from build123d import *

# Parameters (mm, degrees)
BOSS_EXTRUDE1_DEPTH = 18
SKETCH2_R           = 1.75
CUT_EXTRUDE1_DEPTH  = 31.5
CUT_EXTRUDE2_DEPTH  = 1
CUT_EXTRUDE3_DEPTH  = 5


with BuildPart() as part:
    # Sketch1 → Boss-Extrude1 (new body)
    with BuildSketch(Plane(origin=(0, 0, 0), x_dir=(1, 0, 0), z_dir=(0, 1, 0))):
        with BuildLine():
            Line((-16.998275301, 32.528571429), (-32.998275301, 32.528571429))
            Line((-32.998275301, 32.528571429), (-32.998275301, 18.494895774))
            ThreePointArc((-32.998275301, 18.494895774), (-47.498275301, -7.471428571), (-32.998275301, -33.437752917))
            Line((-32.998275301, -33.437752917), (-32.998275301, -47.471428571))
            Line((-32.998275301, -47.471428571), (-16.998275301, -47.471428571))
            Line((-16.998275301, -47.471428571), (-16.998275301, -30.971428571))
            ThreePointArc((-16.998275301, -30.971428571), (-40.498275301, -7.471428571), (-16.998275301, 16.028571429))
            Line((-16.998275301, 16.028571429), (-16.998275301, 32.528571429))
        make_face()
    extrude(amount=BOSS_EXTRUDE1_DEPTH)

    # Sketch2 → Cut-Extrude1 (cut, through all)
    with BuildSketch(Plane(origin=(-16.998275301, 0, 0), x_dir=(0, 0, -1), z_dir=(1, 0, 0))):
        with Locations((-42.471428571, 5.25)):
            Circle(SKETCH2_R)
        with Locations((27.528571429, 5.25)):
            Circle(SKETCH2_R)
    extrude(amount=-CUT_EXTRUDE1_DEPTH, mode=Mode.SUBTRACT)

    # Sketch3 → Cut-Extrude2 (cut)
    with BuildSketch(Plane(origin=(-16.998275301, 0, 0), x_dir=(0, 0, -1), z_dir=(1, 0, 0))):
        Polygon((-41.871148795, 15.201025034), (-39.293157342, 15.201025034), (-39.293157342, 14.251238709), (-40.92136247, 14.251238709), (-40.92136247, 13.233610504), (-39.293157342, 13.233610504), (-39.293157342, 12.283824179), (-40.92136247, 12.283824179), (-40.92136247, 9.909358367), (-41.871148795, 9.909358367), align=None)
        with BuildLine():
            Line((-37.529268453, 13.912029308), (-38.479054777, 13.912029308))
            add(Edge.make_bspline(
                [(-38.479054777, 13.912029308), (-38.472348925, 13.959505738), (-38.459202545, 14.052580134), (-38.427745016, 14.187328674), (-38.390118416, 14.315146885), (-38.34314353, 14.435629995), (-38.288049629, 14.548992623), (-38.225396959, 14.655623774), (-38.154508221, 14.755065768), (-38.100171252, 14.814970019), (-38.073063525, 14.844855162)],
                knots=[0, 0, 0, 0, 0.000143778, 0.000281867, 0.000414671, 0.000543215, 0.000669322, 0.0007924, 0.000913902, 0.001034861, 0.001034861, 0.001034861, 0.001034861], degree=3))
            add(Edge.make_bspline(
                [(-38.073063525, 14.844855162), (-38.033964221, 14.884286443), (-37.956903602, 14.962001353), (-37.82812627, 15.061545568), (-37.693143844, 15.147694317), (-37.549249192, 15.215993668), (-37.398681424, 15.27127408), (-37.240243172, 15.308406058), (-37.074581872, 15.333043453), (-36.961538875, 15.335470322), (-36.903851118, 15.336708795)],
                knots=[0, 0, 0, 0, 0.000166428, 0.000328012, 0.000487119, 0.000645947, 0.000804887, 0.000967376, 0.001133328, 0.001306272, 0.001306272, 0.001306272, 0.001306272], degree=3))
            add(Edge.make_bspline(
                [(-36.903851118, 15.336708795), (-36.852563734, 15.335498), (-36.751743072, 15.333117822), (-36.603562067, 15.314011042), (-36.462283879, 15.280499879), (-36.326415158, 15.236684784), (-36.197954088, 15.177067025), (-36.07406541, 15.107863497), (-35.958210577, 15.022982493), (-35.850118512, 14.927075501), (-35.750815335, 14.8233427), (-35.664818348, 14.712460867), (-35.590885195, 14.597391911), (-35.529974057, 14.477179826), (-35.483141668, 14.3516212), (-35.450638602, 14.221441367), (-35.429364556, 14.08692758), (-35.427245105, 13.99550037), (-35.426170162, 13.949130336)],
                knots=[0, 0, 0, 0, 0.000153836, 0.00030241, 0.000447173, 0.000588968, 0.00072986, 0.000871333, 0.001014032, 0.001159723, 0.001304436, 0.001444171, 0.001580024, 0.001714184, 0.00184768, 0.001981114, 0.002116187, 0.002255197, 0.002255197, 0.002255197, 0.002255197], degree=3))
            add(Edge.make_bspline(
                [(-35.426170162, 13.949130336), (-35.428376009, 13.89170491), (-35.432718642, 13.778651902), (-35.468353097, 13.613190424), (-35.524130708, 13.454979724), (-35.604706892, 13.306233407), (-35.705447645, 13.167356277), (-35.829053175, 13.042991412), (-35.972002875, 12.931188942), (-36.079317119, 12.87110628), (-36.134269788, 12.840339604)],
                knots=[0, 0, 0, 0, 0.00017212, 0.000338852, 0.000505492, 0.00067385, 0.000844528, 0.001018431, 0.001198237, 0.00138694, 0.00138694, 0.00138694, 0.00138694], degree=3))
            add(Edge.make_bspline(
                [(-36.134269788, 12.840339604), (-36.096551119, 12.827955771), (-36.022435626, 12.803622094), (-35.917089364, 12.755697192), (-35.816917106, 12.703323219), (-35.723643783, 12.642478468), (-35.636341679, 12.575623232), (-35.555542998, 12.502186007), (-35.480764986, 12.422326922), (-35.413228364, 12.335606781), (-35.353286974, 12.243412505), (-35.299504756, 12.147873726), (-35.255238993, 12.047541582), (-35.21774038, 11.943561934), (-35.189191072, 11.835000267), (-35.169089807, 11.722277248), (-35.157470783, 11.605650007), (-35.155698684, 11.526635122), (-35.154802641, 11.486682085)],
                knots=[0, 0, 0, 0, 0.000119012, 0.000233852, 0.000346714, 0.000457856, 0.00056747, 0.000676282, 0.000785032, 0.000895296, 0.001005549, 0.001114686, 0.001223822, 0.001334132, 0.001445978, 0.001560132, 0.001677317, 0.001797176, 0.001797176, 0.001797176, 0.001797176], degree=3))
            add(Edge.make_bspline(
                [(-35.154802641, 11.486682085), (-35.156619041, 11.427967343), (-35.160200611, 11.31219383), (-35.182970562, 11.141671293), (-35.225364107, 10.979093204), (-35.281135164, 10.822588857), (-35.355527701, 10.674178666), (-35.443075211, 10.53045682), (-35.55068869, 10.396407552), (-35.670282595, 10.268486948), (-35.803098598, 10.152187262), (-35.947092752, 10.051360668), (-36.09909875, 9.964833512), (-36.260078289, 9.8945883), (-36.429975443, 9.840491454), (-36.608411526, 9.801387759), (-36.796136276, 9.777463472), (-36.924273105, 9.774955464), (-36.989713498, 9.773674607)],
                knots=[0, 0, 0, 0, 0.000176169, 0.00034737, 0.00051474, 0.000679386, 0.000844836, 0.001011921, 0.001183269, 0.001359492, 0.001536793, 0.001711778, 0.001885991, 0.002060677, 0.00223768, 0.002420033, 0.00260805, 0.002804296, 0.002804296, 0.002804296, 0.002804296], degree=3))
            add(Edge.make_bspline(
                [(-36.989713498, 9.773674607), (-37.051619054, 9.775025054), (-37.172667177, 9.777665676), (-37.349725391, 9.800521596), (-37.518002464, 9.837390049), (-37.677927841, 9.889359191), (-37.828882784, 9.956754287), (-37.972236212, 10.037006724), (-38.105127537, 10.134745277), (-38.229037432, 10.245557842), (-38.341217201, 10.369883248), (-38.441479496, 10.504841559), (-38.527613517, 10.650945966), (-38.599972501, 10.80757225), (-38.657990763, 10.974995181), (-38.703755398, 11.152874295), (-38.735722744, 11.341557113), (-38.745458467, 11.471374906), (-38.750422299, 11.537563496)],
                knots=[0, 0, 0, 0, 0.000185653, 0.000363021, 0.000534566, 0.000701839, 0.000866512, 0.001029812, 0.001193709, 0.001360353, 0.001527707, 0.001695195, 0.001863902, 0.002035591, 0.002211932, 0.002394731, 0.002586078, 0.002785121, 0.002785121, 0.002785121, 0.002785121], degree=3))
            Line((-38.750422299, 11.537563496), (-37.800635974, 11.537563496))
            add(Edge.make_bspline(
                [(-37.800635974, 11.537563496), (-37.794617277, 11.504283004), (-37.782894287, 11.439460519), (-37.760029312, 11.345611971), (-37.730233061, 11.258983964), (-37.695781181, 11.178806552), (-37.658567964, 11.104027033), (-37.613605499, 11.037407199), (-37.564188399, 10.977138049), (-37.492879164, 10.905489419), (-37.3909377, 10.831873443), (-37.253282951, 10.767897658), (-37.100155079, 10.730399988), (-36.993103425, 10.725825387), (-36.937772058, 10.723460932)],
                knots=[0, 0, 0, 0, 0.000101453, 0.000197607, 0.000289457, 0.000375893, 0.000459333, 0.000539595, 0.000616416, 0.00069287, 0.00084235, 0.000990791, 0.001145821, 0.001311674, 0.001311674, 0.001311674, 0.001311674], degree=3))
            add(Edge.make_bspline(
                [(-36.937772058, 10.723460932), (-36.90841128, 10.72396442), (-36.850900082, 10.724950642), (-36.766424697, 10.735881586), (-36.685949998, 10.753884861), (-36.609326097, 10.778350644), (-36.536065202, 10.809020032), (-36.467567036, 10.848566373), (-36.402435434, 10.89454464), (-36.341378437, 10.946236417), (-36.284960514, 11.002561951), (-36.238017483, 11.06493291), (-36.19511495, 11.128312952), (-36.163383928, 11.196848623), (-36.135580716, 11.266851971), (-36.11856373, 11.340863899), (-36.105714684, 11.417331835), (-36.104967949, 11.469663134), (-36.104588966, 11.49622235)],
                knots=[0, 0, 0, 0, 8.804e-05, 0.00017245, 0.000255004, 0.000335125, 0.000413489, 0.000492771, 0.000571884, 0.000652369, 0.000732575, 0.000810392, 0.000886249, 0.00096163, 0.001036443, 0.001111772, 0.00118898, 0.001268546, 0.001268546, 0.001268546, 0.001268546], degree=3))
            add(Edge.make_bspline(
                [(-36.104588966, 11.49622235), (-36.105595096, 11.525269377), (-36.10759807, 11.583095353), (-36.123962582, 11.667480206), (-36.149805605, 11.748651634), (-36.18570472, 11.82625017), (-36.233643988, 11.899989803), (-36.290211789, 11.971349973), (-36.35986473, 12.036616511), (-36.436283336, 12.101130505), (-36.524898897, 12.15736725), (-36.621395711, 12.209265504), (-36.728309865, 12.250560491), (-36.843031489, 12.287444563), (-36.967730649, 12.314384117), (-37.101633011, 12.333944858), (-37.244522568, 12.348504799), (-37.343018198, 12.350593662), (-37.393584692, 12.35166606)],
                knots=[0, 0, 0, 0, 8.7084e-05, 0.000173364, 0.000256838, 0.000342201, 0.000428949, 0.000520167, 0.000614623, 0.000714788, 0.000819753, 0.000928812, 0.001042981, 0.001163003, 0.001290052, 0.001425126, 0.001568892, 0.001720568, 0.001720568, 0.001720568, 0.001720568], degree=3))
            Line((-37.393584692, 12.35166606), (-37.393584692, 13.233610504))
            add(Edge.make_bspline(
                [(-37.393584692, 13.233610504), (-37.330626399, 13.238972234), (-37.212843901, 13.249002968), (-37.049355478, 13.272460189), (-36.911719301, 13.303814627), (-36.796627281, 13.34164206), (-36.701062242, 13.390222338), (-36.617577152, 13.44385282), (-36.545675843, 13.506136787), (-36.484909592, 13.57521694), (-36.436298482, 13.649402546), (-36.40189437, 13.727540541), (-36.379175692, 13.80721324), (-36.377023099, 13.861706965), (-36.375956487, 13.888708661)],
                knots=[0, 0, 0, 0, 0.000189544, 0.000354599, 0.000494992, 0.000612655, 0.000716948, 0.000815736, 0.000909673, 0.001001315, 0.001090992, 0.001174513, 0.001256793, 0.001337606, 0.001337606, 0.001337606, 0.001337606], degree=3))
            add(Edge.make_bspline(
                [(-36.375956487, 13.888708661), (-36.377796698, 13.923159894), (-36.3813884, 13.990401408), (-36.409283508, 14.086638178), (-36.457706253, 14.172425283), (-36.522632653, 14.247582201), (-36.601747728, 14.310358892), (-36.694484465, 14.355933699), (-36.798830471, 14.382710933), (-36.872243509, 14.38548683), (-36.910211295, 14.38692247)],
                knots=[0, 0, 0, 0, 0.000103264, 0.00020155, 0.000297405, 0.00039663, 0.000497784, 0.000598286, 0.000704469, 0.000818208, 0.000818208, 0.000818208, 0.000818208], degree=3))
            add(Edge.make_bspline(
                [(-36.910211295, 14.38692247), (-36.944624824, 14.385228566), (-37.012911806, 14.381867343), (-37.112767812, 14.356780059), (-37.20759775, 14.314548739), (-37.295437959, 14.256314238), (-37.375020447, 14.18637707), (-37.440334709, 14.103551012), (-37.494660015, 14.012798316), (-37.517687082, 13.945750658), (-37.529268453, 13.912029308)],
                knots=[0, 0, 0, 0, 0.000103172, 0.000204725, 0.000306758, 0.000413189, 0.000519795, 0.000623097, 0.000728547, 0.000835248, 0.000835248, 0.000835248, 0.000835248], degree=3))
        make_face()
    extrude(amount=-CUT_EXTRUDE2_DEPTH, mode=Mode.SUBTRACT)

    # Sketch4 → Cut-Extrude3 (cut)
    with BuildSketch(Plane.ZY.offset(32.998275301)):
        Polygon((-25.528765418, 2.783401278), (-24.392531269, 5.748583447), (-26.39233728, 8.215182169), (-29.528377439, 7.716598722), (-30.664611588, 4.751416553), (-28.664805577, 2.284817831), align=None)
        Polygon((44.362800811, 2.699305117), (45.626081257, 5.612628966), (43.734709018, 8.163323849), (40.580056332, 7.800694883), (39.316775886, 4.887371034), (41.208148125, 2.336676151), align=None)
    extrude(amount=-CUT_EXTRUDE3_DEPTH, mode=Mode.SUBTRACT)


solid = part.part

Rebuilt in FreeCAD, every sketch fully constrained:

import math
import FreeCAD as App
import Part
import Sketcher


def add_polygon(sketch, points):
    """Adds a closed chain of lines whose ends are joined by coincident constraints."""
    first, n = sketch.GeometryCount, len(points)
    for a, b in zip(points, points[1:] + points[:1]):
        sketch.addGeometry(Part.LineSegment(App.Vector(*a, 0), App.Vector(*b, 0)), False)
    for i in range(n):
        sketch.addConstraint(Sketcher.Constraint("Coincident", first + i, 2, first + (i + 1) % n, 1))

doc = App.newDocument("Part")
body = doc.addObject("PartDesign::Body", "Body")

# Sketch on XZ plane
sketch1 = body.newObject("Sketcher::SketchObject", "Sketch")
sketch1.AttachmentSupport = (doc.getObject("XZ_Plane"), [""])
sketch1.MapMode = "FlatFace"
sketch1.addGeometry(Part.LineSegment(App.Vector(-17, -33, 0), App.Vector(-33, -33, 0)), False)
sketch1.addGeometry(Part.LineSegment(App.Vector(-33, -33, 0), App.Vector(-33, -18, 0)), False)
sketch1.addGeometry(Part.ArcOfCircle(Part.Circle(App.Vector(-17, 7, 0), App.Vector(0, 0, 1), 31), math.radians(122), math.radians(238)), False)
sketch1.addGeometry(Part.LineSegment(App.Vector(-33, 33, 0), App.Vector(-33, 47, 0)), False)
sketch1.addGeometry(Part.LineSegment(App.Vector(-33, 47, 0), App.Vector(-17, 47, 0)), False)
sketch1.addGeometry(Part.LineSegment(App.Vector(-17, 47, 0), App.Vector(-17, 31, 0)), False)
sketch1.addGeometry(Part.ArcOfCircle(Part.Circle(App.Vector(-17, 7, 0), App.Vector(0, 0, 1), 24), math.radians(90), math.radians(270)), False)
sketch1.addGeometry(Part.LineSegment(App.Vector(-17, -16, 0), App.Vector(-17, -33, 0)), False)
sketch1.addConstraint(Sketcher.Constraint("Coincident", 0, 2, 1, 1))
sketch1.addConstraint(Sketcher.Constraint("Coincident", 1, 2, 2, 2))
sketch1.addConstraint(Sketcher.Constraint("Coincident", 2, 1, 3, 1))
sketch1.addConstraint(Sketcher.Constraint("Coincident", 3, 2, 4, 1))
sketch1.addConstraint(Sketcher.Constraint("Coincident", 4, 2, 5, 1))
sketch1.addConstraint(Sketcher.Constraint("Coincident", 5, 2, 6, 1))
sketch1.addConstraint(Sketcher.Constraint("Coincident", 6, 2, 7, 1))
sketch1.addConstraint(Sketcher.Constraint("Coincident", 7, 2, 0, 1))
sketch1.addConstraint(Sketcher.Constraint("Horizontal", 0))
sketch1.addConstraint(Sketcher.Constraint("Vertical", 1))
sketch1.addConstraint(Sketcher.Constraint("Vertical", 3))
sketch1.addConstraint(Sketcher.Constraint("Horizontal", 4))
sketch1.addConstraint(Sketcher.Constraint("Vertical", 5))
sketch1.addConstraint(Sketcher.Constraint("Vertical", 7))
sketch1.addConstraint(Sketcher.Constraint("Coincident", 6, 3, 2, 3))
sketch1.addConstraint(Sketcher.Constraint("Vertical", 1, 2, 2, 1))
sketch1.addConstraint(Sketcher.Constraint("Vertical", 6, 3, 4, 2))
sketch1.addConstraint(Sketcher.Constraint("Vertical", 5, 2, 6, 2))
sketch1.addConstraint(Sketcher.Constraint("Equal", 1, 3))
sketch1.addConstraint(Sketcher.Constraint("Radius", 2, 30.5))
sketch1.addConstraint(Sketcher.Constraint("Radius", 6, 23.5))
sketch1.addConstraint(Sketcher.Constraint("DistanceX", 0, 2, 0, 1, 16.0))
sketch1.addConstraint(Sketcher.Constraint("DistanceY", 5, 2, 5, 1, 16.5))
sketch1.addConstraint(Sketcher.Constraint("DistanceY", -1, 1, 2, 3, 7.471429))
sketch1.addConstraint(Sketcher.Constraint("DistanceX", 2, 3, -1, 1, 16.998275))
pad1 = body.newObject("PartDesign::Pad", "Pad")
pad1.Profile = sketch1
pad1.Length = 18
pad1.Reversed = True

# Sketch on YZ plane
sketch2 = body.newObject("Sketcher::SketchObject", "Sketch001")
sketch2.AttachmentSupport = (doc.getObject("YZ_Plane"), [""])
sketch2.MapMode = "FlatFace"
sketch2.AttachmentOffset = App.Placement(App.Vector(0, 0, -16.998275), App.Rotation())
sketch2.addGeometry(Part.Circle(App.Vector(5.2, 42.5, 0), App.Vector(0, 0, 1), 1.8), False)
sketch2.addGeometry(Part.Circle(App.Vector(5.2, -27.5, 0), App.Vector(0, 0, 1), 1.8), False)
sketch2.addConstraint(Sketcher.Constraint("Equal", 0, 1))
sketch2.addConstraint(Sketcher.Constraint("Vertical", 0, 3, 1, 3))
sketch2.addConstraint(Sketcher.Constraint("Diameter", 0, 3.5))
sketch2.addConstraint(Sketcher.Constraint("DistanceY", 1, 3, 0, 3, 70.0))
sketch2.addConstraint(Sketcher.Constraint("DistanceX", -1, 1, 0, 3, 5.25))
sketch2.addConstraint(Sketcher.Constraint("DistanceY", -1, 1, 0, 3, 42.471429))
pocket1 = body.newObject("PartDesign::Pocket", "Pocket")
pocket1.Profile = sketch2
pocket1.Type = "ThroughAll"

# Sketch on YZ plane
sketch3 = body.newObject("Sketcher::SketchObject", "Sketch002")
sketch3.AttachmentSupport = (doc.getObject("YZ_Plane"), [""])
sketch3.MapMode = "FlatFace"
sketch3.AttachmentOffset = App.Placement(App.Vector(0, 0, -16.998275), App.Rotation())
add_polygon(sketch3, [(15.201025, 39.293157), (15.201025, 41.871149), (9.909358, 41.871149), (9.909358, 40.921362), (12.283824, 40.921362), (12.283824, 39.293157), (13.233611, 39.293157), (13.233611, 40.921362), (14.251239, 40.921362), (14.251239, 39.293157)])  # lines 0-9
sketch3.addGeometry(Part.LineSegment(App.Vector(13.912029, 38.479055, 0), App.Vector(13.912029, 37.529268, 0)), False)  # 10
sketch3.addGeometry(Part.BSplineCurve([App.Vector(14.386922, 36.910211, 0), App.Vector(14.385229, 36.944625, 0), App.Vector(14.381867, 37.012912, 0), App.Vector(14.35678, 37.112768, 0), App.Vector(14.314549, 37.207598, 0), App.Vector(14.256314, 37.295438, 0), App.Vector(14.186377, 37.37502, 0), App.Vector(14.103551, 37.440335, 0), App.Vector(14.012798, 37.49466, 0), App.Vector(13.945751, 37.517687, 0), App.Vector(13.912029, 37.529268, 0)], [4, 1, 1, 1, 1, 1, 1, 1, 4], [0, 0.000103172, 0.000204725, 0.000306758, 0.000413189, 0.000519795, 0.000623097, 0.000728547, 0.000835248], False, 3, [1, 1, 1, 1, 1, 1, 1, 1, 1, 1, 1], False), False)  # 11
sketch3.addGeometry(Part.BSplineCurve([App.Vector(13.888709, 36.375956, 0), App.Vector(13.92316, 36.377797, 0), App.Vector(13.990401, 36.381388, 0), App.Vector(14.086638, 36.409284, 0), App.Vector(14.172425, 36.457706, 0), App.Vector(14.247582, 36.522633, 0), App.Vector(14.310359, 36.601748, 0), App.Vector(14.355934, 36.694484, 0), App.Vector(14.382711, 36.79883, 0), App.Vector(14.385487, 36.872244, 0), App.Vector(14.386922, 36.910211, 0)], [4, 1, 1, 1, 1, 1, 1, 1, 4], [0, 0.000103264, 0.00020155, 0.000297405, 0.00039663, 0.000497784, 0.000598286, 0.000704469, 0.000818208], False, 3, [1, 1, 1, 1, 1, 1, 1, 1, 1, 1, 1], False), False)  # 12
sketch3.addGeometry(Part.BSplineCurve([App.Vector(13.233611, 37.393585, 0), App.Vector(13.238972, 37.330626, 0), App.Vector(13.249003, 37.212844, 0), App.Vector(13.27246, 37.049355, 0), App.Vector(13.303815, 36.911719, 0), App.Vector(13.341642, 36.796627, 0), App.Vector(13.390222, 36.701062, 0), App.Vector(13.443853, 36.617577, 0), App.Vector(13.506137, 36.545676, 0), App.Vector(13.575217, 36.48491, 0), App.Vector(13.649403, 36.436298, 0), App.Vector(13.727541, 36.401894, 0), App.Vector(13.807213, 36.379176, 0), App.Vector(13.861707, 36.377023, 0), App.Vector(13.888709, 36.375956, 0)], [4, 1, 1, 1, 1, 1, 1, 1, 1, 1, 1, 1, 4], [0, 0.000189544, 0.000354599, 0.000494992, 0.000612655, 0.000716948, 0.000815736, 0.000909673, 0.001001315, 0.001090992, 0.001174513, 0.001256793, 0.001337606], False, 3, [1, 1, 1, 1, 1, 1, 1, 1, 1, 1, 1, 1, 1, 1, 1], False), False)  # 13
sketch3.addGeometry(Part.LineSegment(App.Vector(13.233611, 37.393585, 0), App.Vector(12.351666, 37.393585, 0)), False)  # 14
sketch3.addGeometry(Part.BSplineCurve([App.Vector(11.496222, 36.104589, 0), App.Vector(11.525269, 36.105595, 0), App.Vector(11.583095, 36.107598, 0), App.Vector(11.66748, 36.123963, 0), App.Vector(11.748652, 36.149806, 0), App.Vector(11.82625, 36.185705, 0), App.Vector(11.89999, 36.233644, 0), App.Vector(11.97135, 36.290212, 0), App.Vector(12.036617, 36.359865, 0), App.Vector(12.101131, 36.436283, 0), App.Vector(12.157367, 36.524899, 0), App.Vector(12.209266, 36.621396, 0), App.Vector(12.25056, 36.72831, 0), App.Vector(12.287445, 36.843031, 0), App.Vector(12.314384, 36.967731, 0), App.Vector(12.333945, 37.101633, 0), App.Vector(12.348505, 37.244523, 0), App.Vector(12.350594, 37.343018, 0), App.Vector(12.351666, 37.393585, 0)], [4, 1, 1, 1, 1, 1, 1, 1, 1, 1, 1, 1, 1, 1, 1, 1, 4], [0, 0.000087084, 0.000173364, 0.000256838, 0.000342201, 0.000428949, 0.000520167, 0.000614623, 0.000714788, 0.000819753, 0.000928812, 0.001042981, 0.001163003, 0.001290052, 0.001425126, 0.001568892, 0.001720568], False, 3, [1, 1, 1, 1, 1, 1, 1, 1, 1, 1, 1, 1, 1, 1, 1, 1, 1, 1, 1], False), False)  # 15
sketch3.addGeometry(Part.BSplineCurve([App.Vector(10.723461, 36.937772, 0), App.Vector(10.723964, 36.908411, 0), App.Vector(10.724951, 36.8509, 0), App.Vector(10.735882, 36.766425, 0), App.Vector(10.753885, 36.68595, 0), App.Vector(10.778351, 36.609326, 0), App.Vector(10.80902, 36.536065, 0), App.Vector(10.848566, 36.467567, 0), App.Vector(10.894545, 36.402435, 0), App.Vector(10.946236, 36.341378, 0), App.Vector(11.002562, 36.284961, 0), App.Vector(11.064933, 36.238017, 0), App.Vector(11.128313, 36.195115, 0), App.Vector(11.196849, 36.163384, 0), App.Vector(11.266852, 36.135581, 0), App.Vector(11.340864, 36.118564, 0), App.Vector(11.417332, 36.105715, 0), App.Vector(11.469663, 36.104968, 0), App.Vector(11.496222, 36.104589, 0)], [4, 1, 1, 1, 1, 1, 1, 1, 1, 1, 1, 1, 1, 1, 1, 1, 4], [0, 0.00008804, 0.00017245, 0.000255004, 0.000335125, 0.000413489, 0.000492771, 0.000571884, 0.000652369, 0.000732575, 0.000810392, 0.000886249, 0.00096163, 0.001036443, 0.001111772, 0.00118898, 0.001268546], False, 3, [1, 1, 1, 1, 1, 1, 1, 1, 1, 1, 1, 1, 1, 1, 1, 1, 1, 1, 1], False), False)  # 16
sketch3.addGeometry(Part.BSplineCurve([App.Vector(11.537563, 37.800636, 0), App.Vector(11.504283, 37.794617, 0), App.Vector(11.439461, 37.782894, 0), App.Vector(11.345612, 37.760029, 0), App.Vector(11.258984, 37.730233, 0), App.Vector(11.178807, 37.695781, 0), App.Vector(11.104027, 37.658568, 0), App.Vector(11.037407, 37.613605, 0), App.Vector(10.977138, 37.564188, 0), App.Vector(10.905489, 37.492879, 0), App.Vector(10.831873, 37.390938, 0), App.Vector(10.767898, 37.253283, 0), App.Vector(10.7304, 37.100155, 0), App.Vector(10.725825, 36.993103, 0), App.Vector(10.723461, 36.937772, 0)], [4, 1, 1, 1, 1, 1, 1, 1, 1, 1, 1, 1, 4], [0, 0.000101453, 0.000197607, 0.000289457, 0.000375893, 0.000459333, 0.000539595, 0.000616416, 0.00069287, 0.00084235, 0.000990791, 0.001145821, 0.001311674], False, 3, [1, 1, 1, 1, 1, 1, 1, 1, 1, 1, 1, 1, 1, 1, 1], False), False)  # 17
sketch3.addGeometry(Part.LineSegment(App.Vector(11.537563, 37.800636, 0), App.Vector(11.537563, 38.750422, 0)), False)  # 18
sketch3.addGeometry(Part.BSplineCurve([App.Vector(9.773675, 36.989713, 0), App.Vector(9.775025, 37.051619, 0), App.Vector(9.777666, 37.172667, 0), App.Vector(9.800522, 37.349725, 0), App.Vector(9.83739, 37.518002, 0), App.Vector(9.889359, 37.677928, 0), App.Vector(9.956754, 37.828883, 0), App.Vector(10.037007, 37.972236, 0), App.Vector(10.134745, 38.105128, 0), App.Vector(10.245558, 38.229037, 0), App.Vector(10.369883, 38.341217, 0), App.Vector(10.504842, 38.441479, 0), App.Vector(10.650946, 38.527614, 0), App.Vector(10.807572, 38.599973, 0), App.Vector(10.974995, 38.657991, 0), App.Vector(11.152874, 38.703755, 0), App.Vector(11.341557, 38.735723, 0), App.Vector(11.471375, 38.745458, 0), App.Vector(11.537563, 38.750422, 0)], [4, 1, 1, 1, 1, 1, 1, 1, 1, 1, 1, 1, 1, 1, 1, 1, 4], [0, 0.000185653, 0.000363021, 0.000534566, 0.000701839, 0.000866512, 0.001029812, 0.001193709, 0.001360353, 0.001527707, 0.001695195, 0.001863902, 0.002035591, 0.002211932, 0.002394731, 0.002586078, 0.002785121], False, 3, [1, 1, 1, 1, 1, 1, 1, 1, 1, 1, 1, 1, 1, 1, 1, 1, 1, 1, 1], False), False)  # 19
sketch3.addGeometry(Part.BSplineCurve([App.Vector(11.486682, 35.154803, 0), App.Vector(11.427967, 35.156619, 0), App.Vector(11.312194, 35.160201, 0), App.Vector(11.141671, 35.182971, 0), App.Vector(10.979093, 35.225364, 0), App.Vector(10.822589, 35.281135, 0), App.Vector(10.674179, 35.355528, 0), App.Vector(10.530457, 35.443075, 0), App.Vector(10.396408, 35.550689, 0), App.Vector(10.268487, 35.670283, 0), App.Vector(10.152187, 35.803099, 0), App.Vector(10.051361, 35.947093, 0), App.Vector(9.964834, 36.099099, 0), App.Vector(9.894588, 36.260078, 0), App.Vector(9.840491, 36.429975, 0), App.Vector(9.801388, 36.608412, 0), App.Vector(9.777463, 36.796136, 0), App.Vector(9.774955, 36.924273, 0), App.Vector(9.773675, 36.989713, 0)], [4, 1, 1, 1, 1, 1, 1, 1, 1, 1, 1, 1, 1, 1, 1, 1, 4], [0, 0.000176169, 0.00034737, 0.00051474, 0.000679386, 0.000844836, 0.001011921, 0.001183269, 0.001359492, 0.001536793, 0.001711778, 0.001885991, 0.002060677, 0.00223768, 0.002420033, 0.00260805, 0.002804296], False, 3, [1, 1, 1, 1, 1, 1, 1, 1, 1, 1, 1, 1, 1, 1, 1, 1, 1, 1, 1], False), False)  # 20
sketch3.addGeometry(Part.BSplineCurve([App.Vector(12.84034, 36.13427, 0), App.Vector(12.827956, 36.096551, 0), App.Vector(12.803622, 36.022436, 0), App.Vector(12.755697, 35.917089, 0), App.Vector(12.703323, 35.816917, 0), App.Vector(12.642478, 35.723644, 0), App.Vector(12.575623, 35.636342, 0), App.Vector(12.502186, 35.555543, 0), App.Vector(12.422327, 35.480765, 0), App.Vector(12.335607, 35.413228, 0), App.Vector(12.243413, 35.353287, 0), App.Vector(12.147874, 35.299505, 0), App.Vector(12.047542, 35.255239, 0), App.Vector(11.943562, 35.21774, 0), App.Vector(11.835, 35.189191, 0), App.Vector(11.722277, 35.16909, 0), App.Vector(11.60565, 35.157471, 0), App.Vector(11.526635, 35.155699, 0), App.Vector(11.486682, 35.154803, 0)], [4, 1, 1, 1, 1, 1, 1, 1, 1, 1, 1, 1, 1, 1, 1, 1, 4], [0, 0.000119012, 0.000233852, 0.000346714, 0.000457856, 0.00056747, 0.000676282, 0.000785032, 0.000895296, 0.001005549, 0.001114686, 0.001223822, 0.001334132, 0.001445978, 0.001560132, 0.001677317, 0.001797176], False, 3, [1, 1, 1, 1, 1, 1, 1, 1, 1, 1, 1, 1, 1, 1, 1, 1, 1, 1, 1], False), False)  # 21
sketch3.addGeometry(Part.BSplineCurve([App.Vector(13.94913, 35.42617, 0), App.Vector(13.891705, 35.428376, 0), App.Vector(13.778652, 35.432719, 0), App.Vector(13.61319, 35.468353, 0), App.Vector(13.45498, 35.524131, 0), App.Vector(13.306233, 35.604707, 0), App.Vector(13.167356, 35.705448, 0), App.Vector(13.042991, 35.829053, 0), App.Vector(12.931189, 35.972003, 0), App.Vector(12.871106, 36.079317, 0), App.Vector(12.84034, 36.13427, 0)], [4, 1, 1, 1, 1, 1, 1, 1, 4], [0, 0.00017212, 0.000338852, 0.000505492, 0.00067385, 0.000844528, 0.001018431, 0.001198237, 0.00138694], False, 3, [1, 1, 1, 1, 1, 1, 1, 1, 1, 1, 1], False), False)  # 22
sketch3.addGeometry(Part.BSplineCurve([App.Vector(15.336709, 36.903851, 0), App.Vector(15.335498, 36.852564, 0), App.Vector(15.333118, 36.751743, 0), App.Vector(15.314011, 36.603562, 0), App.Vector(15.2805, 36.462284, 0), App.Vector(15.236685, 36.326415, 0), App.Vector(15.177067, 36.197954, 0), App.Vector(15.107863, 36.074065, 0), App.Vector(15.022982, 35.958211, 0), App.Vector(14.927076, 35.850119, 0), App.Vector(14.823343, 35.750815, 0), App.Vector(14.712461, 35.664818, 0), App.Vector(14.597392, 35.590885, 0), App.Vector(14.47718, 35.529974, 0), App.Vector(14.351621, 35.483142, 0), App.Vector(14.221441, 35.450639, 0), App.Vector(14.086928, 35.429365, 0), App.Vector(13.9955, 35.427245, 0), App.Vector(13.94913, 35.42617, 0)], [4, 1, 1, 1, 1, 1, 1, 1, 1, 1, 1, 1, 1, 1, 1, 1, 4], [0, 0.000153836, 0.00030241, 0.000447173, 0.000588968, 0.00072986, 0.000871333, 0.001014032, 0.001159723, 0.001304436, 0.001444171, 0.001580024, 0.001714184, 0.00184768, 0.001981114, 0.002116187, 0.002255197], False, 3, [1, 1, 1, 1, 1, 1, 1, 1, 1, 1, 1, 1, 1, 1, 1, 1, 1, 1, 1], False), False)  # 23
sketch3.addGeometry(Part.BSplineCurve([App.Vector(14.844855, 38.073064, 0), App.Vector(14.884286, 38.033964, 0), App.Vector(14.962001, 37.956904, 0), App.Vector(15.061546, 37.828126, 0), App.Vector(15.147694, 37.693144, 0), App.Vector(15.215994, 37.549249, 0), App.Vector(15.271274, 37.398681, 0), App.Vector(15.308406, 37.240243, 0), App.Vector(15.333043, 37.074582, 0), App.Vector(15.33547, 36.961539, 0), App.Vector(15.336709, 36.903851, 0)], [4, 1, 1, 1, 1, 1, 1, 1, 4], [0, 0.000166428, 0.000328012, 0.000487119, 0.000645947, 0.000804887, 0.000967376, 0.001133328, 0.001306272], False, 3, [1, 1, 1, 1, 1, 1, 1, 1, 1, 1, 1], False), False)  # 24
sketch3.addGeometry(Part.BSplineCurve([App.Vector(13.912029, 38.479055, 0), App.Vector(13.959506, 38.472349, 0), App.Vector(14.05258, 38.459203, 0), App.Vector(14.187329, 38.427745, 0), App.Vector(14.315147, 38.390118, 0), App.Vector(14.43563, 38.343144, 0), App.Vector(14.548993, 38.28805, 0), App.Vector(14.655624, 38.225397, 0), App.Vector(14.755066, 38.154508, 0), App.Vector(14.81497, 38.100171, 0), App.Vector(14.844855, 38.073064, 0)], [4, 1, 1, 1, 1, 1, 1, 1, 4], [0, 0.000143778, 0.000281867, 0.000414671, 0.000543215, 0.000669322, 0.0007924, 0.000913902, 0.001034861], False, 3, [1, 1, 1, 1, 1, 1, 1, 1, 1, 1, 1], False), False)  # 25
sketch3.addConstraint(Sketcher.Constraint("Block", 11))
sketch3.addConstraint(Sketcher.Constraint("Block", 12))
sketch3.addConstraint(Sketcher.Constraint("Block", 13))
sketch3.addConstraint(Sketcher.Constraint("Block", 15))
sketch3.addConstraint(Sketcher.Constraint("Block", 16))
sketch3.addConstraint(Sketcher.Constraint("Block", 17))
sketch3.addConstraint(Sketcher.Constraint("Block", 19))
sketch3.addConstraint(Sketcher.Constraint("Block", 20))
sketch3.addConstraint(Sketcher.Constraint("Block", 21))
sketch3.addConstraint(Sketcher.Constraint("Block", 22))
sketch3.addConstraint(Sketcher.Constraint("Block", 23))
sketch3.addConstraint(Sketcher.Constraint("Block", 24))
sketch3.addConstraint(Sketcher.Constraint("Block", 25))
sketch3.addConstraint(Sketcher.Constraint("Coincident", 10, 2, 11, 2))
sketch3.addConstraint(Sketcher.Constraint("Coincident", 13, 1, 14, 1))
sketch3.addConstraint(Sketcher.Constraint("Coincident", 14, 2, 15, 2))
sketch3.addConstraint(Sketcher.Constraint("Coincident", 17, 1, 18, 1))
sketch3.addConstraint(Sketcher.Constraint("Coincident", 18, 2, 19, 2))
sketch3.addConstraint(Sketcher.Constraint("Coincident", 25, 1, 10, 1))
sketch3.addConstraint(Sketcher.Constraint("Vertical", 0))
sketch3.addConstraint(Sketcher.Constraint("Horizontal", 1))
sketch3.addConstraint(Sketcher.Constraint("Vertical", 2))
sketch3.addConstraint(Sketcher.Constraint("Horizontal", 3))
sketch3.addConstraint(Sketcher.Constraint("Vertical", 4))
sketch3.addConstraint(Sketcher.Constraint("Horizontal", 5))
sketch3.addConstraint(Sketcher.Constraint("Vertical", 6))
sketch3.addConstraint(Sketcher.Constraint("Horizontal", 7))
sketch3.addConstraint(Sketcher.Constraint("Vertical", 8))
sketch3.addConstraint(Sketcher.Constraint("Horizontal", 9))
sketch3.addConstraint(Sketcher.Constraint("Horizontal", 3, 2, 6, 2))
sketch3.addConstraint(Sketcher.Constraint("Horizontal", 5, 2, 8, 2))
sketch3.addConstraint(Sketcher.Constraint("Equal", 5, 9))
sketch3.addConstraint(Sketcher.Constraint("Equal", 9, 2))
sketch3.addConstraint(Sketcher.Constraint("Equal", 2, 10))
sketch3.addConstraint(Sketcher.Constraint("DistanceX", 7, 1, 7, 2, 1.017628))
sketch3.addConstraint(Sketcher.Constraint("DistanceY", 0, 1, 0, 2, 2.577991))
sketch3.addConstraint(Sketcher.Constraint("DistanceX", 1, 2, 1, 1, 5.291667))
sketch3.addConstraint(Sketcher.Constraint("DistanceY", -1, 1, 0, 2, 41.871149))
sketch3.addConstraint(Sketcher.Constraint("DistanceX", -1, 1, 1, 2, 9.909358))
pocket2 = body.newObject("PartDesign::Pocket", "Pocket001")
pocket2.Profile = sketch3
pocket2.Length = 1

# Sketch on YZ plane
sketch4 = body.newObject("Sketcher::SketchObject", "Sketch003")
sketch4.AttachmentSupport = (doc.getObject("YZ_Plane"), [""])
sketch4.MapMode = "FlatFace"
sketch4.AttachmentOffset = App.Placement(App.Vector(0, 0, -32.998275), App.Rotation())
add_polygon(sketch4, [(2.8, -25.5), (5.7, -24.4), (8.2, -26.4), (7.7, -29.5), (4.8, -30.7), (2.3, -28.7)])  # lines 0-5
add_polygon(sketch4, [(2.7, 44.4), (5.6, 45.6), (8.2, 43.7), (7.8, 40.6), (4.9, 39.3), (2.3, 41.2)])  # lines 6-11
sketch4.addConstraint(Sketcher.Constraint("Parallel", 0, 3))
sketch4.addConstraint(Sketcher.Constraint("Parallel", 1, 4))
sketch4.addConstraint(Sketcher.Constraint("Parallel", 2, 5))
sketch4.addConstraint(Sketcher.Constraint("Parallel", 6, 9))
sketch4.addConstraint(Sketcher.Constraint("Parallel", 7, 10))
sketch4.addConstraint(Sketcher.Constraint("Parallel", 8, 11))
sketch4.addConstraint(Sketcher.Constraint("Equal", 0, 1))
sketch4.addConstraint(Sketcher.Constraint("Equal", 1, 2))
sketch4.addConstraint(Sketcher.Constraint("Equal", 2, 3))
sketch4.addConstraint(Sketcher.Constraint("Equal", 5, 6))
sketch4.addConstraint(Sketcher.Constraint("Equal", 6, 7))
sketch4.addConstraint(Sketcher.Constraint("Equal", 7, 8))
sketch4.addConstraint(Sketcher.Constraint("Equal", 8, 9))
sketch4.addConstraint(Sketcher.Constraint("DistanceX", -1, 1, 2, 2, 7.716599))
sketch4.addConstraint(Sketcher.Constraint("DistanceX", -1, 1, 5, 2, 2.783401))
sketch4.addConstraint(Sketcher.Constraint("DistanceY", -1, 1, 11, 2, 44.362801))
sketch4.addConstraint(Sketcher.Constraint("DistanceX", 0, 2, 1, 2, 2.466599))
sketch4.addConstraint(Sketcher.Constraint("DistanceY", 0, 2, -1, 1, 24.392531))
sketch4.addConstraint(Sketcher.Constraint("DistanceY", 3, 2, -1, 1, 30.664612))
sketch4.addConstraint(Sketcher.Constraint("DistanceX", -1, 1, 6, 2, 5.612629))
sketch4.addConstraint(Sketcher.Constraint("DistanceY", -1, 1, 6, 2, 45.626081))
sketch4.addConstraint(Sketcher.Constraint("DistanceY", -1, 1, 7, 2, 43.734709))
sketch4.addConstraint(Sketcher.Constraint("DistanceX", -1, 1, 9, 2, 4.887371))
sketch4.addConstraint(Sketcher.Constraint("DistanceY", -1, 1, 10, 2, 41.208148))
pocket3 = body.newObject("PartDesign::Pocket", "Pocket002")
pocket3.Profile = sketch4
pocket3.Length = 5
pocket3.Reversed = True

doc.recompute()
